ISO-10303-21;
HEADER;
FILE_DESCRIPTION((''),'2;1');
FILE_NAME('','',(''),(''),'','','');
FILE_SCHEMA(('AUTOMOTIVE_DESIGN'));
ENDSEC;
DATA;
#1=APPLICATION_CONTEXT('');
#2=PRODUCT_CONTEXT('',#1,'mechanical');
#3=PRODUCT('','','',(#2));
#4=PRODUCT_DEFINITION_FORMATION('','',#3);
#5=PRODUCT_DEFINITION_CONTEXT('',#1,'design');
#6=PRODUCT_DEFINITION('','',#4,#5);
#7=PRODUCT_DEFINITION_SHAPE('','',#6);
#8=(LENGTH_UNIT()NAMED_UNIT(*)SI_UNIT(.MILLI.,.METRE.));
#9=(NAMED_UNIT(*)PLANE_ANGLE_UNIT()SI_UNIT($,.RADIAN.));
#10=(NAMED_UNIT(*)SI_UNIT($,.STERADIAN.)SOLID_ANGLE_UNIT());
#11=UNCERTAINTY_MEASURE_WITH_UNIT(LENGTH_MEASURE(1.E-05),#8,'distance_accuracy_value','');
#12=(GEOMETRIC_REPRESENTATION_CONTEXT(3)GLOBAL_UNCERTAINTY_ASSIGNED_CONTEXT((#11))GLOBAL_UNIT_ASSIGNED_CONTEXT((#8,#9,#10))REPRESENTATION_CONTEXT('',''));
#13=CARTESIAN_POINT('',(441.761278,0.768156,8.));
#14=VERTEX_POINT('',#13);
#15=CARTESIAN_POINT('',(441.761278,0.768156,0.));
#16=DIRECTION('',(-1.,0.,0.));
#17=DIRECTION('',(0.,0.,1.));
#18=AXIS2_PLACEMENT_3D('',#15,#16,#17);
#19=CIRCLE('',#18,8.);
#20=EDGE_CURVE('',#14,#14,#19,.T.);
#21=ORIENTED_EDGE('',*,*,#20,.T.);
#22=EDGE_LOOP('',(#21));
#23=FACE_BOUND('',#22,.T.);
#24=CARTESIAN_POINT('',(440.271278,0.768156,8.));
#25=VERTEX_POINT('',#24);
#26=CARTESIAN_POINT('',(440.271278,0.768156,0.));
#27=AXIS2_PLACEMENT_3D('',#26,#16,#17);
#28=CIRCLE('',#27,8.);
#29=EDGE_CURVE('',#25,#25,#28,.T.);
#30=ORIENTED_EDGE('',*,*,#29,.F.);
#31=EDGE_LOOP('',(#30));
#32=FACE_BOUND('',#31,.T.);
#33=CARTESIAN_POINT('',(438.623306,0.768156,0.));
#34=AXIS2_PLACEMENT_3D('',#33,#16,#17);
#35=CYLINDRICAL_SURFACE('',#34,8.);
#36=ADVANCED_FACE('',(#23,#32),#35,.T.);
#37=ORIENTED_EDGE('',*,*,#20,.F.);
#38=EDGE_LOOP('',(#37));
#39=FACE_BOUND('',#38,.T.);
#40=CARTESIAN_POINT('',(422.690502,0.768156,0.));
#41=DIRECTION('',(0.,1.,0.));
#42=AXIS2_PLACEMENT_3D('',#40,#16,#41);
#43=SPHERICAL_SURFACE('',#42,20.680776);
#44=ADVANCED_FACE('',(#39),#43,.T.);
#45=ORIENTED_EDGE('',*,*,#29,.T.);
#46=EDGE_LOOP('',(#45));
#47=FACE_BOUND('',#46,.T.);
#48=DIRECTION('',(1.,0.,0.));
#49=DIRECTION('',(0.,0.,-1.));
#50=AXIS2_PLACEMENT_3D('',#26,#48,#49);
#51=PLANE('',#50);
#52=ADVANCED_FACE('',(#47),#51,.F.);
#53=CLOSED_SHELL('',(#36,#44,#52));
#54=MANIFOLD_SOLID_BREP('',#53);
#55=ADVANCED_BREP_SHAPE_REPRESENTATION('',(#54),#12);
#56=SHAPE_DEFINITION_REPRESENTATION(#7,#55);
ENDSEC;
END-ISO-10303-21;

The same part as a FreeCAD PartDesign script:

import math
import FreeCAD as App
import Part
import Sketcher
from FreeCAD import Vector

doc = App.newDocument("Part")
body = doc.addObject("PartDesign::Body", "Body")

# Sketch on XY plane
sketch1 = body.newObject("Sketcher::SketchObject", "Sketch")
sketch1.AttachmentSupport = (doc.getObject("XY_Plane"), [""])
sketch1.MapMode = "FlatFace"
sketch1.addGeometry([
    Part.LineSegment(Vector(440.3, 8.8, 0), Vector(440.3, 0.8, 0)),
    Part.LineSegment(Vector(440.3, 0.8, 0), Vector(443.4, 0.8, 0)),
    Part.ArcOfCircle(Part.Circle(Vector(422.7, 0.8, 0), Vector(0, 0, 1), 20.7), math.radians(0), math.radians(23)),
    Part.LineSegment(Vector(441.8, 8.8, 0), Vector(440.3, 8.8, 0)),
], False)
sketch1.addGeometry(Part.LineSegment(Vector(422.7, 0.8, 0), Vector(443.4, 0.8, 0)), True)  # axis
sketch1.addConstraint([
    Sketcher.Constraint("Coincident", 0, 2, 1, 1),
    Sketcher.Constraint("Coincident", 1, 2, 2, 1),
    Sketcher.Constraint("Coincident", 2, 2, 3, 1),
    Sketcher.Constraint("Coincident", 3, 2, 0, 1),
    Sketcher.Constraint("Vertical", 0),
    Sketcher.Constraint("Horizontal", 1),
    Sketcher.Constraint("Horizontal", 3),
    Sketcher.Constraint("Horizontal", 4),
    Sketcher.Constraint("Coincident", 4, 1, 2, 3),
    Sketcher.Constraint("Coincident", 4, 2, 1, 2),
    Sketcher.Constraint("DistanceY", 0, 2, 0, 1, 8.0),
    Sketcher.Constraint("DistanceX", 1, 1, 1, 2, 3.1),
    Sketcher.Constraint("DistanceX", 3, 2, 3, 1, 1.49),
    Sketcher.Constraint("DistanceX", -1, 1, 2, 3, 422.690502),
    Sketcher.Constraint("DistanceY", -1, 1, 2, 3, 0.768156),
])
revolution = body.newObject("PartDesign::Revolution", "Revolution")
revolution.Profile = sketch1
revolution.ReferenceAxis = (sketch1, ["Axis0"])
revolution.Angle = 360

doc.recompute()
